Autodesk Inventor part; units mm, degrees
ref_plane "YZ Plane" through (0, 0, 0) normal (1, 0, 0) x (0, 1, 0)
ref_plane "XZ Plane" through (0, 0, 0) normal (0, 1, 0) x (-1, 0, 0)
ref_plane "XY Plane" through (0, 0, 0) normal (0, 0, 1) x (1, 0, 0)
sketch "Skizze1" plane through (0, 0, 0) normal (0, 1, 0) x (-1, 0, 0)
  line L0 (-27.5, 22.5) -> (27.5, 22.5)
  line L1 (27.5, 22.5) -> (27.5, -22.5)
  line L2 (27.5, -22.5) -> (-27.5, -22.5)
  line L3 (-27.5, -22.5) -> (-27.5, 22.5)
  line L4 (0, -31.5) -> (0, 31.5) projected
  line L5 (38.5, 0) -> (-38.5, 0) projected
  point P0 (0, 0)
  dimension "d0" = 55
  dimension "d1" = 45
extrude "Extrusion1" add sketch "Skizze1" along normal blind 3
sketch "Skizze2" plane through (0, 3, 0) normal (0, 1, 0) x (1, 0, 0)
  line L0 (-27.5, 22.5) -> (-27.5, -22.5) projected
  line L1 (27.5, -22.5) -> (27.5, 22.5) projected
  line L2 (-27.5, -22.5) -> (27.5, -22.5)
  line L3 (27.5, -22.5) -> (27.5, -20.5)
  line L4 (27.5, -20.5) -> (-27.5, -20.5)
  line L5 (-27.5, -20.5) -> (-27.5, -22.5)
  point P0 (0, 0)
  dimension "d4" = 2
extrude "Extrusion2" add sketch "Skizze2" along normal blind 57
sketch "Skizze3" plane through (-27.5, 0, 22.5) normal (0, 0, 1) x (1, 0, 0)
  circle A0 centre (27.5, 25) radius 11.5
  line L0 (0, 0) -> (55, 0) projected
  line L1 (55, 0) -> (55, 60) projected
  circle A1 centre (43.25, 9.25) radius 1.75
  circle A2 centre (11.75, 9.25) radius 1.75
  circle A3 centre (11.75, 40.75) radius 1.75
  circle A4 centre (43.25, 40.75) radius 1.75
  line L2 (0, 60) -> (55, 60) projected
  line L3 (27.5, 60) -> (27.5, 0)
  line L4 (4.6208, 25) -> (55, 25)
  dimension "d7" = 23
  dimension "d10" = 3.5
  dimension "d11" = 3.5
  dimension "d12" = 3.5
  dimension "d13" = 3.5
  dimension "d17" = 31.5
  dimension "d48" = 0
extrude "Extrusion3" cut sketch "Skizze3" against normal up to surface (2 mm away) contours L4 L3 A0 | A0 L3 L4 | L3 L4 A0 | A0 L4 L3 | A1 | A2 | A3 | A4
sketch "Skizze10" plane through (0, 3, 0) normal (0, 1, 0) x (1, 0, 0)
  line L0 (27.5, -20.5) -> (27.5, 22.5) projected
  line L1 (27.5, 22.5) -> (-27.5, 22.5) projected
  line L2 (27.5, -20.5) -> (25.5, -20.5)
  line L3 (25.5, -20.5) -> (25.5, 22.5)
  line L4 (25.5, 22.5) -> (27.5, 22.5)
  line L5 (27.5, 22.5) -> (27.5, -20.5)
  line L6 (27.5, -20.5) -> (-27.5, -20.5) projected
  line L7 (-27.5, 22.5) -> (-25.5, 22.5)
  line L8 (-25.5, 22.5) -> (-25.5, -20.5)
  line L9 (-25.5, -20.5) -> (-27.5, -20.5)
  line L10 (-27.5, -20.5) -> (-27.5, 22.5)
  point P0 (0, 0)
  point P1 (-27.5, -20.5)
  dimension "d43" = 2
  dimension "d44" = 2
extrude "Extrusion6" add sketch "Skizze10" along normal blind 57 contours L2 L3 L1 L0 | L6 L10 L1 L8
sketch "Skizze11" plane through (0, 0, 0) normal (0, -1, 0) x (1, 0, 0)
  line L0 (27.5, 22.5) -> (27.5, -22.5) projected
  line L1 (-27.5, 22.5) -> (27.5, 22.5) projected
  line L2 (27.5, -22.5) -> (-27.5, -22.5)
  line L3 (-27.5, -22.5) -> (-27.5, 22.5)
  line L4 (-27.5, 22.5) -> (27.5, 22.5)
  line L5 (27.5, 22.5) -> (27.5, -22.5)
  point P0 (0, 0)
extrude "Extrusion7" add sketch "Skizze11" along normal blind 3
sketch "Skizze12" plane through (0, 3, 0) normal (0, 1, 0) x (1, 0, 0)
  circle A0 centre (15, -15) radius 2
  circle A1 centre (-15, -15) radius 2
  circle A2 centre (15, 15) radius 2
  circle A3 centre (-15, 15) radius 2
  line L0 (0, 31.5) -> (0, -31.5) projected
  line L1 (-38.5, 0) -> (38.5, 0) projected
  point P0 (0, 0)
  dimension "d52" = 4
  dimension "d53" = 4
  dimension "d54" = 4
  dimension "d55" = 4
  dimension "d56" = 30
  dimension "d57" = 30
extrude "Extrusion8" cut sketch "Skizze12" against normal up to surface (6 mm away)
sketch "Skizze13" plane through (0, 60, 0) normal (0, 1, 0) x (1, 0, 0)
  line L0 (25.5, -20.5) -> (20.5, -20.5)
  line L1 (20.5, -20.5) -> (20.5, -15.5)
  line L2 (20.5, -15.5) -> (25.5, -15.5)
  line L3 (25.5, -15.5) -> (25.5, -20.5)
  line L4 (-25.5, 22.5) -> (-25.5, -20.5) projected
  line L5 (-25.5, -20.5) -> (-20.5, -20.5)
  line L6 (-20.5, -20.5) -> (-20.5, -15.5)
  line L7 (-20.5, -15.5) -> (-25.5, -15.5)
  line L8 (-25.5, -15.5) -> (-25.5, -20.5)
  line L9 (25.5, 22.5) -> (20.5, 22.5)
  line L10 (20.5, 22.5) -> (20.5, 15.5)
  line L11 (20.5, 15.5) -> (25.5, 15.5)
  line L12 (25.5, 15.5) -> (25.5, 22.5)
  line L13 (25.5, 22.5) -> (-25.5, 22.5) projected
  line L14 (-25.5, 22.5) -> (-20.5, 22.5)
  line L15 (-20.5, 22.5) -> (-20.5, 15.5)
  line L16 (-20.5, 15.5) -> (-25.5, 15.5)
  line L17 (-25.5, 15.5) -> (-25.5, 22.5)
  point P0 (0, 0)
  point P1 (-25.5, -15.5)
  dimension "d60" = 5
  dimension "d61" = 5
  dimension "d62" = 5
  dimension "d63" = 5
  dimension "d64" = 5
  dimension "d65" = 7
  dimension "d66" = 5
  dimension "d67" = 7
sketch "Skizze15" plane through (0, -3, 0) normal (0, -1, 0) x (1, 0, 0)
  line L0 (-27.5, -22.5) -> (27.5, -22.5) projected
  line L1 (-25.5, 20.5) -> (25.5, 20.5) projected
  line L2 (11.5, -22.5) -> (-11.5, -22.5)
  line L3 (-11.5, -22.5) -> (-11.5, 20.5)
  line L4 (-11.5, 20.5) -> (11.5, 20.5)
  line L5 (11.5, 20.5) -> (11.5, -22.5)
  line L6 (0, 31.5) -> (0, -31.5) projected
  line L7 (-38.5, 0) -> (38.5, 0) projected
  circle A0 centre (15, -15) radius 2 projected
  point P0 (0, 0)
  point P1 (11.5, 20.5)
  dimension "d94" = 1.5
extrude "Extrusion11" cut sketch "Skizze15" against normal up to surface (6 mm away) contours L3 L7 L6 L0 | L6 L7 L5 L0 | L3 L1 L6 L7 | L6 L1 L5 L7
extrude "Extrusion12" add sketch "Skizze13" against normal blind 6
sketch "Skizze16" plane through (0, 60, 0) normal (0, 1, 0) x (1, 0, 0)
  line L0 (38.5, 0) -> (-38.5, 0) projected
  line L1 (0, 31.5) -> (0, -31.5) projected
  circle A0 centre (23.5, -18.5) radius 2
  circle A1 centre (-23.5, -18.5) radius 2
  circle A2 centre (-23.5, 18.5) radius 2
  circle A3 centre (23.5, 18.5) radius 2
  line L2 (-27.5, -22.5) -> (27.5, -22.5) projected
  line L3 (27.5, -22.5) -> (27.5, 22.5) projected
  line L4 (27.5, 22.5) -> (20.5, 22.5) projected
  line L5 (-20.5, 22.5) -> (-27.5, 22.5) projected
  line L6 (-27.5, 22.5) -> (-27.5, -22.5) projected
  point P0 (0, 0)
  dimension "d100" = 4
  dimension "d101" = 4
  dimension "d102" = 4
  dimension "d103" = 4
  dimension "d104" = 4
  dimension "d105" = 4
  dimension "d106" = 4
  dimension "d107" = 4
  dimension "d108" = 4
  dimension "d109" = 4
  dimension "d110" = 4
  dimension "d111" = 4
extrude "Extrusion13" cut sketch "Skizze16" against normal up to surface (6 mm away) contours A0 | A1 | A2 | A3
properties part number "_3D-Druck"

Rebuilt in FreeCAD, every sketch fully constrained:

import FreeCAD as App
import Part
import Sketcher

V = App.Vector


def add_polygon(sketch, points):
    """Adds a closed chain of lines whose ends are joined by coincident constraints."""
    first, n = sketch.GeometryCount, len(points)
    for a, b in zip(points, points[1:] + points[:1]):
        sketch.addGeometry(Part.LineSegment(App.Vector(*a, 0), App.Vector(*b, 0)), False)
    for i in range(n):
        sketch.addConstraint(Sketcher.Constraint("Coincident", first + i, 2, first + (i + 1) % n, 1))

doc = App.newDocument("Part")
body = doc.addObject("PartDesign::Body", "Body")

# Sketch on XZ plane
sketch1 = body.newObject("Sketcher::SketchObject", "Sketch")
sketch1.AttachmentSupport = (doc.getObject("XZ_Plane"), [""])
sketch1.MapMode = "FlatFace"
add_polygon(sketch1, [(28, 22), (28, -22), (-28, -22), (-28, 22)])  # lines 0-3
sketch1.addConstraint([
    Sketcher.Constraint("Vertical", 0),
    Sketcher.Constraint("Horizontal", 1),
    Sketcher.Constraint("Vertical", 2),
    Sketcher.Constraint("Horizontal", 3),
    Sketcher.Constraint("Symmetric", 0, 2, 2, 2, -1, 1),
    Sketcher.Constraint("DistanceX", 1, 2, 1, 1, 55.0),
    Sketcher.Constraint("DistanceY", 0, 2, 0, 1, 45.0),
])
pad1 = body.newObject("PartDesign::Pad", "Pad")
pad1.Profile = sketch1
pad1.Length = 3
pad1.Reversed = True

# Sketch on XZ plane
sketch2 = body.newObject("Sketcher::SketchObject", "Sketch001")
sketch2.AttachmentSupport = (doc.getObject("XZ_Plane"), [""])
sketch2.MapMode = "FlatFace"
sketch2.AttachmentOffset = App.Placement(V(0, 0, -3), App.Rotation())
add_polygon(sketch2, [(27.5, 20.5), (-27.5, 20.5), (-27.5, 22.5), (27.5, 22.5)])  # lines 0-3
sketch2.addConstraint([
    Sketcher.Constraint("Horizontal", 0),
    Sketcher.Constraint("Vertical", 1),
    Sketcher.Constraint("Horizontal", 2),
    Sketcher.Constraint("Vertical", 3),
    Sketcher.Constraint("DistanceY", 1, 1, 1, 2, 2.0),
    Sketcher.Constraint("DistanceX", 0, 2, 0, 1, 55.0),
    Sketcher.Constraint("DistanceX", 0, 2, -1, 1, 27.5),
    Sketcher.Constraint("DistanceY", -1, 1, 0, 2, 20.5),
])
pad2 = body.newObject("PartDesign::Pad", "Pad001")
pad2.Profile = sketch2
pad2.Length = 57
pad2.Reversed = True

# Sketch on XY plane
sketch3 = body.newObject("Sketcher::SketchObject", "Sketch002")
sketch3.AttachmentSupport = (doc.getObject("XY_Plane"), [""])
sketch3.MapMode = "FlatFace"
sketch3.AttachmentOffset = App.Placement(V(0, 0, 22.5), App.Rotation())
sketch3.addGeometry([
    Part.Circle(V(0, 25, 0), V(0, 0, 1), 11.5),  # 0
    Part.Circle(V(15.8, 9.2, 0), V(0, 0, 1), 1.8),  # 1
    Part.Circle(V(-15.8, 9.2, 0), V(0, 0, 1), 1.8),  # 2
    Part.Circle(V(-15.8, 40.8, 0), V(0, 0, 1), 1.8),  # 3
    Part.Circle(V(15.8, 40.8, 0), V(0, 0, 1), 1.8),  # 4
], False)
sketch3.addConstraint([
    Sketcher.Constraint("Equal", 1, 2),
    Sketcher.Constraint("Equal", 2, 3),
    Sketcher.Constraint("Equal", 3, 4),
    Sketcher.Constraint("Symmetric", 1, 3, 2, 3, -2),
    Sketcher.Constraint("Symmetric", 3, 3, 4, 3, -2),
    Sketcher.Constraint("PointOnObject", 0, 3, -2),
    Sketcher.Constraint("Vertical", 2, 3, 3, 3),
    Sketcher.Constraint("Diameter", 0, 23.0),
    Sketcher.Constraint("Diameter", 1, 3.5),
    Sketcher.Constraint("DistanceX", 2, 3, 1, 3, 31.5),
    Sketcher.Constraint("DistanceY", 2, 3, 3, 3, 31.5),
    Sketcher.Constraint("DistanceY", -1, 1, 0, 3, 25.0),
    Sketcher.Constraint("DistanceY", -1, 1, 1, 3, 9.25),
])
pocket1 = body.newObject("PartDesign::Pocket", "Pocket")
pocket1.Profile = sketch3
pocket1.Length = 2

# Sketch on XZ plane
sketch4 = body.newObject("Sketcher::SketchObject", "Sketch003")
sketch4.AttachmentSupport = (doc.getObject("XZ_Plane"), [""])
sketch4.MapMode = "FlatFace"
sketch4.AttachmentOffset = App.Placement(V(0, 0, -3), App.Rotation())
add_polygon(sketch4, [(25.5, 20.5), (27.5, 20.5), (27.5, -22.5), (25.5, -22.5)])  # lines 0-3
add_polygon(sketch4, [(-27.5, 20.5), (-25.5, 20.5), (-25.5, -22.5), (-27.5, -22.5)])  # lines 4-7
sketch4.addConstraint([
    Sketcher.Constraint("Horizontal", 0),
    Sketcher.Constraint("Vertical", 1),
    Sketcher.Constraint("Horizontal", 2),
    Sketcher.Constraint("Vertical", 3),
    Sketcher.Constraint("Horizontal", 4),
    Sketcher.Constraint("Vertical", 5),
    Sketcher.Constraint("Horizontal", 6),
    Sketcher.Constraint("Vertical", 7),
    Sketcher.Constraint("Symmetric", 3, 2, 4, 2, -2),
    Sketcher.Constraint("Symmetric", 1, 2, 6, 2, -2),
    Sketcher.Constraint("DistanceX", 0, 1, 0, 2, 2.0),
    Sketcher.Constraint("DistanceY", 1, 2, 1, 1, 43.0),
    Sketcher.Constraint("DistanceX", 4, 2, 3, 2, 51.0),
    Sketcher.Constraint("DistanceY", -1, 1, 0, 2, 20.5),
])
pad3 = body.newObject("PartDesign::Pad", "Pad002")
pad3.Profile = sketch4
pad3.Length = 57
pad3.Reversed = True

# Sketch on XZ plane
sketch5 = body.newObject("Sketcher::SketchObject", "Sketch004")
sketch5.AttachmentSupport = (doc.getObject("XZ_Plane"), [""])
sketch5.MapMode = "FlatFace"
add_polygon(sketch5, [(28, -22), (28, 22), (-28, 22), (-28, -22)])  # lines 0-3
sketch5.addConstraint([
    Sketcher.Constraint("Vertical", 0),
    Sketcher.Constraint("Horizontal", 1),
    Sketcher.Constraint("Vertical", 2),
    Sketcher.Constraint("Horizontal", 3),
    Sketcher.Constraint("Symmetric", 0, 2, 2, 2, -1, 1),
    Sketcher.Constraint("DistanceX", 1, 2, 1, 1, 55.0),
    Sketcher.Constraint("DistanceY", 0, 1, 0, 2, 45.0),
])
pad4 = body.newObject("PartDesign::Pad", "Pad003")
pad4.Profile = sketch5
pad4.Length = 3

# Sketch on XZ plane
sketch6 = body.newObject("Sketcher::SketchObject", "Sketch005")
sketch6.AttachmentSupport = (doc.getObject("XZ_Plane"), [""])
sketch6.MapMode = "FlatFace"
sketch6.AttachmentOffset = App.Placement(V(0, 0, -3), App.Rotation())
sketch6.addGeometry([
    Part.Circle(V(15, 15, 0), V(0, 0, 1), 2),
    Part.Circle(V(-15, 15, 0), V(0, 0, 1), 2),
    Part.Circle(V(15, -15, 0), V(0, 0, 1), 2),
    Part.Circle(V(-15, -15, 0), V(0, 0, 1), 2),
], False)
sketch6.addConstraint([
    Sketcher.Constraint("Equal", 0, 1),
    Sketcher.Constraint("Equal", 1, 2),
    Sketcher.Constraint("Equal", 2, 3),
    Sketcher.Constraint("Symmetric", 1, 3, 2, 3, -1, 1),
    Sketcher.Constraint("Symmetric", 0, 3, 3, 3, -1, 1),
    Sketcher.Constraint("Symmetric", 0, 3, 1, 3, -2),
    Sketcher.Constraint("Diameter", 0, 4.0),
    Sketcher.Constraint("DistanceX", 1, 3, 0, 3, 30.0),
    Sketcher.Constraint("DistanceY", 2, 3, 0, 3, 30.0),
])
pocket2 = body.newObject("PartDesign::Pocket", "Pocket001")
pocket2.Profile = sketch6
pocket2.Length = 6
pocket2.Reversed = True

# Sketch on XZ plane
sketch7 = body.newObject("Sketcher::SketchObject", "Sketch006")
sketch7.AttachmentSupport = (doc.getObject("XZ_Plane"), [""])
sketch7.MapMode = "FlatFace"
sketch7.AttachmentOffset = App.Placement(V(0, 0, 3), App.Rotation())
add_polygon(sketch7, [(-12, -22), (12, -22), (12, 20), (-12, 20)])  # lines 0-3
sketch7.addConstraint([
    Sketcher.Constraint("Horizontal", 0),
    Sketcher.Constraint("Vertical", 1),
    Sketcher.Constraint("Horizontal", 2),
    Sketcher.Constraint("Vertical", 3),
    Sketcher.Constraint("DistanceX", 0, 1, 0, 2, 23.0),
    Sketcher.Constraint("DistanceY", 1, 1, 1, 2, 43.0),
    Sketcher.Constraint("DistanceX", -1, 1, 0, 2, 11.5),
    Sketcher.Constraint("DistanceY", 0, 2, -1, 1, 22.5),
])
pocket3 = body.newObject("PartDesign::Pocket", "Pocket002")
pocket3.Profile = sketch7
pocket3.Length = 6

# Sketch on XZ plane
sketch8 = body.newObject("Sketcher::SketchObject", "Sketch007")
sketch8.AttachmentSupport = (doc.getObject("XZ_Plane"), [""])
sketch8.MapMode = "FlatFace"
sketch8.AttachmentOffset = App.Placement(V(0, 0, -60), App.Rotation())
add_polygon(sketch8, [(20, 20), (26, 20), (26, 16), (20, 16)])  # lines 0-3
add_polygon(sketch8, [(-20, -22), (-26, -22), (-26, -16), (-20, -16)])  # lines 4-7
add_polygon(sketch8, [(26, -22), (20, -22), (20, -16), (26, -16)])  # lines 8-11
add_polygon(sketch8, [(-20, 16), (-26, 16), (-26, 20), (-20, 20)])  # lines 12-15
sketch8.addConstraint([
    Sketcher.Constraint("Horizontal", 0),
    Sketcher.Constraint("Vertical", 1),
    Sketcher.Constraint("Horizontal", 2),
    Sketcher.Constraint("Vertical", 3),
    Sketcher.Constraint("Horizontal", 4),
    Sketcher.Constraint("Vertical", 5),
    Sketcher.Constraint("Horizontal", 6),
    Sketcher.Constraint("Vertical", 7),
    Sketcher.Constraint("Horizontal", 8),
    Sketcher.Constraint("Vertical", 9),
    Sketcher.Constraint("Horizontal", 10),
    Sketcher.Constraint("Vertical", 11),
    Sketcher.Constraint("Horizontal", 12),
    Sketcher.Constraint("Vertical", 13),
    Sketcher.Constraint("Horizontal", 14),
    Sketcher.Constraint("Vertical", 15),
    Sketcher.Constraint("Symmetric", 1, 2, 5, 2, -1, 1),
    Sketcher.Constraint("Symmetric", 10, 2, 12, 2, -1, 1),
    Sketcher.Constraint("Symmetric", 7, 2, 8, 2, -2),
    Sketcher.Constraint("Symmetric", 5, 2, 10, 2, -2),
    Sketcher.Constraint("Symmetric", 3, 2, 14, 2, -2),
    Sketcher.Constraint("Vertical", 3, 2, 8, 2),
    Sketcher.Constraint("Equal", 14, 1),
    Sketcher.Constraint("DistanceX", 0, 1, 0, 2, 5.0),
    Sketcher.Constraint("DistanceY", 5, 1, 5, 2, 7.0),
    Sketcher.Constraint("DistanceX", 4, 2, 2, 2, 46.0),
    Sketcher.Constraint("DistanceY", 4, 2, 2, 2, 38.0),
])
pad5 = body.newObject("PartDesign::Pad", "Pad004")
pad5.Profile = sketch8
pad5.Length = 6

# Sketch on XZ plane
sketch9 = body.newObject("Sketcher::SketchObject", "Sketch008")
sketch9.AttachmentSupport = (doc.getObject("XZ_Plane"), [""])
sketch9.MapMode = "FlatFace"
sketch9.AttachmentOffset = App.Placement(V(0, 0, -60), App.Rotation())
sketch9.addGeometry([
    Part.Circle(V(23.5, 18.5, 0), V(0, 0, 1), 2),
    Part.Circle(V(-23.5, 18.5, 0), V(0, 0, 1), 2),
    Part.Circle(V(-23.5, -18.5, 0), V(0, 0, 1), 2),
    Part.Circle(V(23.5, -18.5, 0), V(0, 0, 1), 2),
], False)
sketch9.addConstraint([
    Sketcher.Constraint("Equal", 0, 1),
    Sketcher.Constraint("Equal", 1, 2),
    Sketcher.Constraint("Equal", 2, 3),
    Sketcher.Constraint("Symmetric", 0, 3, 2, 3, -1, 1),
    Sketcher.Constraint("Symmetric", 1, 3, 3, 3, -1, 1),
    Sketcher.Constraint("Symmetric", 0, 3, 1, 3, -2),
    Sketcher.Constraint("Diameter", 0, 4.0),
    Sketcher.Constraint("DistanceX", 1, 3, 0, 3, 47.0),
    Sketcher.Constraint("DistanceY", 2, 3, 1, 3, 37.0),
])
pocket4 = body.newObject("PartDesign::Pocket", "Pocket003")
pocket4.Profile = sketch9
pocket4.Length = 6
pocket4.Reversed = True

doc.recompute()
